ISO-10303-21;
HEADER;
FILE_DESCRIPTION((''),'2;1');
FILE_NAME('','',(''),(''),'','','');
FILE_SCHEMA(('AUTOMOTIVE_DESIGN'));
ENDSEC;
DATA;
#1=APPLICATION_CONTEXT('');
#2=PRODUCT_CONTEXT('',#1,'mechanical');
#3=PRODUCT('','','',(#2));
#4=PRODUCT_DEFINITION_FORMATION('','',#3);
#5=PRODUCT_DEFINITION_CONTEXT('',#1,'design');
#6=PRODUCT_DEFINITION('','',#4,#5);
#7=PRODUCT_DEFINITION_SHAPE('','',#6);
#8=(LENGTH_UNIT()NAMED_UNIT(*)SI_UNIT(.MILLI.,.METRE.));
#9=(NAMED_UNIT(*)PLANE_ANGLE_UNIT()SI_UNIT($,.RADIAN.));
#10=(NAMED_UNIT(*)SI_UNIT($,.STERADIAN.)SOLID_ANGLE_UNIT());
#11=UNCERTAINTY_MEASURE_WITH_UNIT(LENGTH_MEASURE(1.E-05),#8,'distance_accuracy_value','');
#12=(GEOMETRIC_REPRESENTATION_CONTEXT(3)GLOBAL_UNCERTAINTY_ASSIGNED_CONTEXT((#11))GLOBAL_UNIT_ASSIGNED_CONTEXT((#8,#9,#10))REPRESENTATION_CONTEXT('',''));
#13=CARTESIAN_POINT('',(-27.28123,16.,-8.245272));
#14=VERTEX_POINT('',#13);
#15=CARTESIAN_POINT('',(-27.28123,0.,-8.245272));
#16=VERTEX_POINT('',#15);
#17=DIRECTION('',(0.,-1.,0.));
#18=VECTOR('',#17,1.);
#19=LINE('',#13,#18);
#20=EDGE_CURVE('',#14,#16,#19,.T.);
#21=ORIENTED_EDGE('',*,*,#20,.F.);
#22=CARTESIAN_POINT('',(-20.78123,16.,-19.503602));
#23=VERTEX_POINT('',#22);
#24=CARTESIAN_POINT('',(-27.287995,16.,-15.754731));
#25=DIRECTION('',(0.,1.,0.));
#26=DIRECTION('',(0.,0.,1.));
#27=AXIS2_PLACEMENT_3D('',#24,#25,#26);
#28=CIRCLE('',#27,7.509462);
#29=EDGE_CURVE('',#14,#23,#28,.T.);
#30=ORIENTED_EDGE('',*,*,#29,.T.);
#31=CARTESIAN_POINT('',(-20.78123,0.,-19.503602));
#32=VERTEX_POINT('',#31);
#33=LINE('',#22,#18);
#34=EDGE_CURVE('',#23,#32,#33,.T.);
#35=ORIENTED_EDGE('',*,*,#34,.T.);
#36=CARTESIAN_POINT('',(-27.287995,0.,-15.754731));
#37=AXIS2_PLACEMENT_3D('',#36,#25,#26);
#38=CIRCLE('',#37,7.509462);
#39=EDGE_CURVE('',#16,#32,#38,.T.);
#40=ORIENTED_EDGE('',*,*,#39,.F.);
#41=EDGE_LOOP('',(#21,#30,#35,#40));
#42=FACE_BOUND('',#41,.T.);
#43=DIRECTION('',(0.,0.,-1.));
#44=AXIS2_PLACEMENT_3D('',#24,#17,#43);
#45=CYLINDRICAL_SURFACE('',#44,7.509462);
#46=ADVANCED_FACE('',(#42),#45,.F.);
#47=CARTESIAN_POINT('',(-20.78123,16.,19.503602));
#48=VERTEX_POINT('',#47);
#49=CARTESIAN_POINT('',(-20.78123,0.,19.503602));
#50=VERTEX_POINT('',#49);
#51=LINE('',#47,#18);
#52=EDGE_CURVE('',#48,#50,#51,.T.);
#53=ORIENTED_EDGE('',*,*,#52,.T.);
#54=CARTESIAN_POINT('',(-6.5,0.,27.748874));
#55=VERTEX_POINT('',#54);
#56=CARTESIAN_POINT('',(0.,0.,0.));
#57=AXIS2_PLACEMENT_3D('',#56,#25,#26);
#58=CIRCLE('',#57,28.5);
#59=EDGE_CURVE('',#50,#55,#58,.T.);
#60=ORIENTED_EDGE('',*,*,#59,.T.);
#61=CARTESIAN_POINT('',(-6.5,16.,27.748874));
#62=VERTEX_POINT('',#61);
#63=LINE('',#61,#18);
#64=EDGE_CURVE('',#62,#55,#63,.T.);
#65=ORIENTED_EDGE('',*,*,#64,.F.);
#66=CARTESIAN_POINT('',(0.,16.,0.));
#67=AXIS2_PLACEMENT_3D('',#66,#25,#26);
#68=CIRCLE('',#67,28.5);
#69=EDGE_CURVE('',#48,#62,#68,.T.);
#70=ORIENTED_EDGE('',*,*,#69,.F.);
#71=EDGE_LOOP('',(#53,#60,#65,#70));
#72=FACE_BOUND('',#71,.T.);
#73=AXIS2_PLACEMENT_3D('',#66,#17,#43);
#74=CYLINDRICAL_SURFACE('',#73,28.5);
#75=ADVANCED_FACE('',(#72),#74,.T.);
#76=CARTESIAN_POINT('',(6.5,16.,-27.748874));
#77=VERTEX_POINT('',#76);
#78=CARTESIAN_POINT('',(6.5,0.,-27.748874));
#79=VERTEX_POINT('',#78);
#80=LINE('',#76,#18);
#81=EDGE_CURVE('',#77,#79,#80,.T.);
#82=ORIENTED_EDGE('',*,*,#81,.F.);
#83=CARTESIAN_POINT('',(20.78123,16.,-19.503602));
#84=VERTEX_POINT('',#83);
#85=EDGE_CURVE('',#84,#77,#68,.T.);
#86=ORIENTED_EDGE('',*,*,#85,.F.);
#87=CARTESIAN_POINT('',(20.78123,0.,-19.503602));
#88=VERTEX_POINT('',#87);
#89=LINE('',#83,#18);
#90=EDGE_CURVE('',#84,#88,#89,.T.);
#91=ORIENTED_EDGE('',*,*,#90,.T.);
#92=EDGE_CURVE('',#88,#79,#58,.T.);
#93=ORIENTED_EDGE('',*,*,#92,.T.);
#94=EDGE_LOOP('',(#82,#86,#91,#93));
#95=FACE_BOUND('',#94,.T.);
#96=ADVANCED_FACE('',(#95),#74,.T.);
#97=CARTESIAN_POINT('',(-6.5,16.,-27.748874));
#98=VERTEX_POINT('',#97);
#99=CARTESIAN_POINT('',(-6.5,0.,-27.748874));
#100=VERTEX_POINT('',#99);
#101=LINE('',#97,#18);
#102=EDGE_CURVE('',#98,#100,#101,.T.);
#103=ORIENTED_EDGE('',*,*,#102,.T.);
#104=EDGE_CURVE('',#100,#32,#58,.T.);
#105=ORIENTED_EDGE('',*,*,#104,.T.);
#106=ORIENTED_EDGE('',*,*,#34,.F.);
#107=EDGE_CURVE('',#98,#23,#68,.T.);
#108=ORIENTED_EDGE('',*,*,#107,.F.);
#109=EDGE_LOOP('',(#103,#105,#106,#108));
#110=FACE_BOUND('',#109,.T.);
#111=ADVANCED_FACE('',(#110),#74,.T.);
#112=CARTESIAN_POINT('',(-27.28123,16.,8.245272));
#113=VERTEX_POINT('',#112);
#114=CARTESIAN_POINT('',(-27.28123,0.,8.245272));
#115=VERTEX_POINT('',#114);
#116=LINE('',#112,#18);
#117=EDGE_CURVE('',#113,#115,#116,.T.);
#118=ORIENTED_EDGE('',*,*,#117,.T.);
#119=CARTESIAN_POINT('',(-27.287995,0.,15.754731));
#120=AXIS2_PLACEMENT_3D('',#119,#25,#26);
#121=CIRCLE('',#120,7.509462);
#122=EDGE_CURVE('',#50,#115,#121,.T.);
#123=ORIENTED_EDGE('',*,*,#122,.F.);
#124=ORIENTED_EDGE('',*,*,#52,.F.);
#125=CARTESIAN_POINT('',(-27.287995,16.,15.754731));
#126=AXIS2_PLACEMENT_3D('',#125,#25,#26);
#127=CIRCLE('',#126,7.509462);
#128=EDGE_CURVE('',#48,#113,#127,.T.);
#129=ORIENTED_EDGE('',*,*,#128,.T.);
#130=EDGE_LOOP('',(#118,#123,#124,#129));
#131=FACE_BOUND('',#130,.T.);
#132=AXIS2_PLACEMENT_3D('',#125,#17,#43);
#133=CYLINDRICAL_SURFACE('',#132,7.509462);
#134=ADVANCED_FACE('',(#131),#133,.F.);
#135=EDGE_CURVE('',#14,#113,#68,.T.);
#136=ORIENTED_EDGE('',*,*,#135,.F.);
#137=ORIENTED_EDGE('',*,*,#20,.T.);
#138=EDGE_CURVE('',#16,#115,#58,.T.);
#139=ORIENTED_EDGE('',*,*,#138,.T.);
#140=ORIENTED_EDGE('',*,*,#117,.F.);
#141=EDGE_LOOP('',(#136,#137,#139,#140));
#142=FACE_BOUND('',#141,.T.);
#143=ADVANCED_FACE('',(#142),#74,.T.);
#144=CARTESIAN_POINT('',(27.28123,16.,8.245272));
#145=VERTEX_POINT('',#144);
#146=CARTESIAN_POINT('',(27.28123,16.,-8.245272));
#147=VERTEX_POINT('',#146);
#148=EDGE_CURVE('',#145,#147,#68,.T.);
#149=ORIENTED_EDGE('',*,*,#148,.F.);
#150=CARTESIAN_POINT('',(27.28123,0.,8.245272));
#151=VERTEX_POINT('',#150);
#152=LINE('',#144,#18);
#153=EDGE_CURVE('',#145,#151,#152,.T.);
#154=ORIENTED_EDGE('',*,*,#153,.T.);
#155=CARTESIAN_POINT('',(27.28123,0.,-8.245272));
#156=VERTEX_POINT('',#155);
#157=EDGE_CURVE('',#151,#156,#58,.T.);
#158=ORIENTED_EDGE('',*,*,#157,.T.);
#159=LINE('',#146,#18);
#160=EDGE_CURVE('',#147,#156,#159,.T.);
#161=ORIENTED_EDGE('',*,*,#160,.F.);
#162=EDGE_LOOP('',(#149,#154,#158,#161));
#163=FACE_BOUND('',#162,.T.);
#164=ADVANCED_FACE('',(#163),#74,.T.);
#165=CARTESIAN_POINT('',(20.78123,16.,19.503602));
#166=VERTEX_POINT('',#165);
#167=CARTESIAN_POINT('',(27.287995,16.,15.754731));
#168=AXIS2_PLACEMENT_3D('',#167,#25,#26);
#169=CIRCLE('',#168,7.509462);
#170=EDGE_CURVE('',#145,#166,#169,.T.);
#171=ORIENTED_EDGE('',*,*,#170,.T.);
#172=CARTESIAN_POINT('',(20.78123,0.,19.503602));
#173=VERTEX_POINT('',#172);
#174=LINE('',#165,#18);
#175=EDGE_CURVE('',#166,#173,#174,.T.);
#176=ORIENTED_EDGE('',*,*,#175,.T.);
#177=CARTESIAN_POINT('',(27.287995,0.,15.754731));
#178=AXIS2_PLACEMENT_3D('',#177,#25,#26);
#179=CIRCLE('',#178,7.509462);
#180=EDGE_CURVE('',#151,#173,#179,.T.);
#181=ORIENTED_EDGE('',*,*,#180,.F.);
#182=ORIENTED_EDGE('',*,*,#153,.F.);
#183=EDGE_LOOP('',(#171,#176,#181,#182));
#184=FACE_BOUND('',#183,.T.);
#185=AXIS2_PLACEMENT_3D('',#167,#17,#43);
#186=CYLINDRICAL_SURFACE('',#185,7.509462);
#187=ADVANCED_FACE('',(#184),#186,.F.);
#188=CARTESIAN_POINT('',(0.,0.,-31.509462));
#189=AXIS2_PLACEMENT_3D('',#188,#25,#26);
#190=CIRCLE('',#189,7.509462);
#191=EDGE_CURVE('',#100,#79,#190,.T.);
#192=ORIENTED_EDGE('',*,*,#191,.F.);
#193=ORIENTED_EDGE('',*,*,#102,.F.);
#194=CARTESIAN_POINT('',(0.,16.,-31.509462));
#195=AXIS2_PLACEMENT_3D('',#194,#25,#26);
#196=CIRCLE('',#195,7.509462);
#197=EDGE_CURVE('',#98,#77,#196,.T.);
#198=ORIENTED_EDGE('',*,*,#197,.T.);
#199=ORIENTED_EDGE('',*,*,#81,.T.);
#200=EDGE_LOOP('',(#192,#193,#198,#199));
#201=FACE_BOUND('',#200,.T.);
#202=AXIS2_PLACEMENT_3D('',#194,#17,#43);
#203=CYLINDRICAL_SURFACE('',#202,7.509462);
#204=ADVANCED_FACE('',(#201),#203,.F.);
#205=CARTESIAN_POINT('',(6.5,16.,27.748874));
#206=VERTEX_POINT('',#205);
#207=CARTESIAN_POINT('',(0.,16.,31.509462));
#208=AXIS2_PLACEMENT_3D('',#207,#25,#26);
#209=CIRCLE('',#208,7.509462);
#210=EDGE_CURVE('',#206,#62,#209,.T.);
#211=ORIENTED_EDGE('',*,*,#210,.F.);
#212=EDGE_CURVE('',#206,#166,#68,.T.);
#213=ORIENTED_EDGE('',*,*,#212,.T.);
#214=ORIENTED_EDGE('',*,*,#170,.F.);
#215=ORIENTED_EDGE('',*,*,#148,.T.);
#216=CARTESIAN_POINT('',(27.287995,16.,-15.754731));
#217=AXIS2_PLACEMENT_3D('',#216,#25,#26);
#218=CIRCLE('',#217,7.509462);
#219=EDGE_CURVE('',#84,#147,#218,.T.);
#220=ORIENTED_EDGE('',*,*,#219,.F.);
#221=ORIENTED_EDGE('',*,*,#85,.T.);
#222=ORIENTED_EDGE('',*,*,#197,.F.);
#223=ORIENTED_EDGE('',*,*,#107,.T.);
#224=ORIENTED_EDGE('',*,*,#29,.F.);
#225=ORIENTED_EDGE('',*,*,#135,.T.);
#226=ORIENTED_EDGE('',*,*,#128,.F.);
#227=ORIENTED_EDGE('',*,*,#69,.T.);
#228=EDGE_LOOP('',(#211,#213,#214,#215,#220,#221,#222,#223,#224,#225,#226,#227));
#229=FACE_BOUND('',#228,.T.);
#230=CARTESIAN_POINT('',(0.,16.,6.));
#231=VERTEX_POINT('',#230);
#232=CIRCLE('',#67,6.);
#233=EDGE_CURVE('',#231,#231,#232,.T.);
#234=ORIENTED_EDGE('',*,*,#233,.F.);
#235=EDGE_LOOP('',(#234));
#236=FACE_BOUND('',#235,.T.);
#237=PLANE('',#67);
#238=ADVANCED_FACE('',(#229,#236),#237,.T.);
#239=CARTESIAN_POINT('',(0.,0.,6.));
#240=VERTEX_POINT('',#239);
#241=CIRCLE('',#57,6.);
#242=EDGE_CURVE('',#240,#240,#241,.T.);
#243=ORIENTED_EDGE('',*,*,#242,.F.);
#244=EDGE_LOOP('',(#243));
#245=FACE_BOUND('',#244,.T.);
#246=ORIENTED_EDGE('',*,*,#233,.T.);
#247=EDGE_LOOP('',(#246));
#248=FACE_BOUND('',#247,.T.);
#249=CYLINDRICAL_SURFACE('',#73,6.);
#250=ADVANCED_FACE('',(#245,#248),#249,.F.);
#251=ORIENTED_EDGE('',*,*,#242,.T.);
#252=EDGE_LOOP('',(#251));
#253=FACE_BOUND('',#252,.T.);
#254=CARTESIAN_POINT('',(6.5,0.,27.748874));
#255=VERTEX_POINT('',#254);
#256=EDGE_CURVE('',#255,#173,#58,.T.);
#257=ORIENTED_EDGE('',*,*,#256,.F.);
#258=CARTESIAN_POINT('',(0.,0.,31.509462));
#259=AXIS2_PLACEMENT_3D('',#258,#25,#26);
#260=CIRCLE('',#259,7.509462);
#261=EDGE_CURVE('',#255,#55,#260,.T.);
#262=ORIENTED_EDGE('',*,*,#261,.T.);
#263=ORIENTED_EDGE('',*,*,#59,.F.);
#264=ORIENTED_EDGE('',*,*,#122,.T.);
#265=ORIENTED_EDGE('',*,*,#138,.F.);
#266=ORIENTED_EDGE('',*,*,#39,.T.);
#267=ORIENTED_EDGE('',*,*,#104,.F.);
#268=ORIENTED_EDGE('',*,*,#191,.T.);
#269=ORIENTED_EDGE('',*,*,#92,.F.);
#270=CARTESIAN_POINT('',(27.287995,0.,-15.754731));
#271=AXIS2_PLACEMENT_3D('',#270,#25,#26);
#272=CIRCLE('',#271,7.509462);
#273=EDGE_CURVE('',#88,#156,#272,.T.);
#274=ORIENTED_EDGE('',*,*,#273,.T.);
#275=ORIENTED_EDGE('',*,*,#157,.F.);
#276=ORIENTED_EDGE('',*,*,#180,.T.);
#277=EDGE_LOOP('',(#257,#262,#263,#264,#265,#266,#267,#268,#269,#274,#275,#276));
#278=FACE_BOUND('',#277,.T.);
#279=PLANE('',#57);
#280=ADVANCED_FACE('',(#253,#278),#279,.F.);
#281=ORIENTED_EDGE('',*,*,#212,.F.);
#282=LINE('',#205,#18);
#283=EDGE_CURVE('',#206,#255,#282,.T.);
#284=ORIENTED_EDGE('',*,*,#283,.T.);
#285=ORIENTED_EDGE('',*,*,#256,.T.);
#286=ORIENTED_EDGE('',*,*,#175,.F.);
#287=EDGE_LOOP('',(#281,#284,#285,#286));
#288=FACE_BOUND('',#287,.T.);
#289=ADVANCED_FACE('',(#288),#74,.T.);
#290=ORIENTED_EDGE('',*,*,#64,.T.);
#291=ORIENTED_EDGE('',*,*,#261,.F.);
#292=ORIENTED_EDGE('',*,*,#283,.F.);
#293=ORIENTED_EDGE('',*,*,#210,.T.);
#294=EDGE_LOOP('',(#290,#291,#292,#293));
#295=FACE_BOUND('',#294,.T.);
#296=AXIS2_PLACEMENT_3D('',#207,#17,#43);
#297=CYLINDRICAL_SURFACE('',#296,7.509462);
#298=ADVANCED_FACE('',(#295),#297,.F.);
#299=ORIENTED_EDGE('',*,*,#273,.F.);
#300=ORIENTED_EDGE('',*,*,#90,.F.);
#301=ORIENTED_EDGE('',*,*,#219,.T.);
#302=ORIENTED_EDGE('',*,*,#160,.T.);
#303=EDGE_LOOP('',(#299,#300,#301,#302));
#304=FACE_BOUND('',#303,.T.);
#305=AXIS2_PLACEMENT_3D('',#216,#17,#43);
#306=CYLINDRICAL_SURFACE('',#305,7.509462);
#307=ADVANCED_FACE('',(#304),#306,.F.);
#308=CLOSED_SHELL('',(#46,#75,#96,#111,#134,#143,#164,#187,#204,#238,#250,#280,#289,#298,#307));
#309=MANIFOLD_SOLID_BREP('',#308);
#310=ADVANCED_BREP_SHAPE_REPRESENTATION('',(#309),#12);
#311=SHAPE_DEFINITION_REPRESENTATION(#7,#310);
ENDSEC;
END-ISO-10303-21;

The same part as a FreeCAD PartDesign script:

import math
import FreeCAD as App
import Part
import Sketcher
Q = App.Units.Quantity

doc = App.newDocument("Part")
body = doc.addObject("PartDesign::Body", "Body")

# Sketch on XZ plane
sketch1 = body.newObject("Sketcher::SketchObject", "Sketch")
sketch1.AttachmentSupport = (doc.getObject("XZ_Plane"), [""])
sketch1.MapMode = "FlatFace"
sketch1.addGeometry(Part.ArcOfCircle(Part.Circle(App.Vector(0, 0, 0), App.Vector(0, 0, 1), 28.5), math.radians(0), math.radians(16.82)), False)
sketch1.addGeometry(Part.ArcOfCircle(Part.Circle(App.Vector(0, 0, 0), App.Vector(0, 0, 1), 28.5), math.radians(-16.82), math.radians(0)), False)
sketch1.addGeometry(Part.ArcOfCircle(Part.Circle(App.Vector(27.3, -15.8, 0), App.Vector(0, 0, 1), 7.5), math.radians(90), math.radians(210)), False)
sketch1.addGeometry(Part.ArcOfCircle(Part.Circle(App.Vector(0, 0, 0), App.Vector(0, 0, 1), 28.5), math.radians(-77), math.radians(-43)), False)
sketch1.addGeometry(Part.ArcOfCircle(Part.Circle(App.Vector(0, -31.5, 0), App.Vector(0, 0, 1), 7.5), math.radians(30), math.radians(150)), False)
sketch1.addGeometry(Part.ArcOfCircle(Part.Circle(App.Vector(0, 0, 0), App.Vector(0, 0, 1), 28.5), math.radians(-137), math.radians(-103)), False)
sketch1.addGeometry(Part.ArcOfCircle(Part.Circle(App.Vector(-27.3, -15.8, 0), App.Vector(0, 0, 1), 7.5), math.radians(-30), math.radians(0)), False)
sketch1.addGeometry(Part.ArcOfCircle(Part.Circle(App.Vector(-27.3, -15.8, 0), App.Vector(0, 0, 1), 7.5), math.radians(0), math.radians(90)), False)
sketch1.addGeometry(Part.ArcOfCircle(Part.Circle(App.Vector(0, 0, 0), App.Vector(0, 0, 1), 28.5), math.radians(163), math.radians(197)), False)
sketch1.addGeometry(Part.ArcOfCircle(Part.Circle(App.Vector(-27.3, 15.8, 0), App.Vector(0, 0, 1), 7.5), math.radians(-90), math.radians(0)), False)
sketch1.addGeometry(Part.ArcOfCircle(Part.Circle(App.Vector(-27.3, 15.8, 0), App.Vector(0, 0, 1), 7.5), math.radians(0), math.radians(30)), False)
sketch1.addGeometry(Part.ArcOfCircle(Part.Circle(App.Vector(0, 0, 0), App.Vector(0, 0, 1), 28.5), math.radians(103), math.radians(137)), False)
sketch1.addGeometry(Part.ArcOfCircle(Part.Circle(App.Vector(0, 31.5, 0), App.Vector(0, 0, 1), 7.5), math.radians(-150), math.radians(-30)), False)
sketch1.addGeometry(Part.ArcOfCircle(Part.Circle(App.Vector(0, 0, 0), App.Vector(0, 0, 1), 28.5), math.radians(43), math.radians(77)), False)
sketch1.addGeometry(Part.ArcOfCircle(Part.Circle(App.Vector(27.3, 15.8, 0), App.Vector(0, 0, 1), 7.5), math.radians(150), math.radians(270)), False)
sketch1.addGeometry(Part.Circle(App.Vector(0, 0, 0), App.Vector(0, 0, 1), 6), False)
sketch1.addConstraint(Sketcher.Constraint("Tangent", 0, 1, 1, 2))
sketch1.addConstraint(Sketcher.Constraint("Coincident", 1, 1, 2, 1))
sketch1.addConstraint(Sketcher.Constraint("Coincident", 2, 2, 3, 2))
sketch1.addConstraint(Sketcher.Constraint("Coincident", 3, 1, 4, 1))
sketch1.addConstraint(Sketcher.Constraint("Coincident", 4, 2, 5, 2))
sketch1.addConstraint(Sketcher.Constraint("Coincident", 5, 1, 6, 1))
sketch1.addConstraint(Sketcher.Constraint("Tangent", 6, 2, 7, 1))
sketch1.addConstraint(Sketcher.Constraint("Coincident", 7, 2, 8, 2))
sketch1.addConstraint(Sketcher.Constraint("Coincident", 8, 1, 9, 1))
sketch1.addConstraint(Sketcher.Constraint("Tangent", 9, 2, 10, 1))
sketch1.addConstraint(Sketcher.Constraint("Coincident", 10, 2, 11, 2))
sketch1.addConstraint(Sketcher.Constraint("Coincident", 11, 1, 12, 1))
sketch1.addConstraint(Sketcher.Constraint("Coincident", 12, 2, 13, 2))
sketch1.addConstraint(Sketcher.Constraint("Coincident", 13, 1, 14, 1))
sketch1.addConstraint(Sketcher.Constraint("Coincident", 14, 2, 0, 2))
sketch1.addConstraint(Sketcher.Constraint("Coincident", 0, 3, -1, 1))
sketch1.addConstraint(Sketcher.Constraint("Coincident", 3, 3, -1, 1))
sketch1.addConstraint(Sketcher.Constraint("Coincident", 5, 3, -1, 1))
sketch1.addConstraint(Sketcher.Constraint("Coincident", 8, 3, -1, 1))
sketch1.addConstraint(Sketcher.Constraint("Coincident", 11, 3, -1, 1))
sketch1.addConstraint(Sketcher.Constraint("Coincident", 13, 3, -1, 1))
sketch1.addConstraint(Sketcher.Constraint("Coincident", 15, 3, -1, 1))
sketch1.addConstraint(Sketcher.Constraint("Equal", 0, 1))
sketch1.addConstraint(Sketcher.Constraint("Equal", 1, 3))
sketch1.addConstraint(Sketcher.Constraint("Equal", 2, 4))
sketch1.addConstraint(Sketcher.Constraint("Equal", 3, 5))
sketch1.addConstraint(Sketcher.Constraint("Equal", 4, 6))
sketch1.addConstraint(Sketcher.Constraint("Equal", 6, 7))
sketch1.addConstraint(Sketcher.Constraint("Equal", 5, 8))
sketch1.addConstraint(Sketcher.Constraint("Equal", 7, 9))
sketch1.addConstraint(Sketcher.Constraint("Equal", 9, 10))
sketch1.addConstraint(Sketcher.Constraint("Equal", 8, 11))
sketch1.addConstraint(Sketcher.Constraint("Equal", 10, 12))
sketch1.addConstraint(Sketcher.Constraint("Equal", 11, 13))
sketch1.addConstraint(Sketcher.Constraint("Equal", 12, 14))
sketch1.addConstraint(Sketcher.Constraint("Symmetric", 2, 3, 9, 3, -1, 1))
sketch1.addConstraint(Sketcher.Constraint("Symmetric", 4, 3, 12, 3, -1, 1))
sketch1.addConstraint(Sketcher.Constraint("Symmetric", 6, 3, 14, 3, -1, 1))
sketch1.addConstraint(Sketcher.Constraint("Symmetric", 2, 3, 6, 3, -2))
sketch1.addConstraint(Sketcher.Constraint("PointOnObject", 4, 3, -2))
sketch1.addConstraint(Sketcher.Constraint("PointOnObject", 0, 1, -1))
sketch1.addConstraint(Sketcher.Constraint("Horizontal", 7, 3, 6, 2))
sketch1.addConstraint(Sketcher.Constraint("Horizontal", 14, 3, 9, 2))
sketch1.addConstraint(Sketcher.Constraint("Diameter", 15, Q("12 mm")))
sketch1.addConstraint(Sketcher.Constraint("Radius", 0, Q("28.5 mm")))
sketch1.addConstraint(Sketcher.Constraint("DistanceX", 4, 2, 3, 1, Q("13 mm")))
sketch1.addConstraint(Sketcher.Constraint("DistanceX", 2, 2, 1, 1, Q("6.5 mm")))
sketch1.addConstraint(Sketcher.Constraint("Radius", 2, Q("7.509462 mm")))
sketch1.addConstraint(Sketcher.Constraint("DistanceY", 2, 3, -1, 1, Q("15.754731 mm")))
pad1 = body.newObject("PartDesign::Pad", "Pad")
pad1.Profile = sketch1
pad1.Length = 16
pad1.Reversed = True

doc.recompute()
